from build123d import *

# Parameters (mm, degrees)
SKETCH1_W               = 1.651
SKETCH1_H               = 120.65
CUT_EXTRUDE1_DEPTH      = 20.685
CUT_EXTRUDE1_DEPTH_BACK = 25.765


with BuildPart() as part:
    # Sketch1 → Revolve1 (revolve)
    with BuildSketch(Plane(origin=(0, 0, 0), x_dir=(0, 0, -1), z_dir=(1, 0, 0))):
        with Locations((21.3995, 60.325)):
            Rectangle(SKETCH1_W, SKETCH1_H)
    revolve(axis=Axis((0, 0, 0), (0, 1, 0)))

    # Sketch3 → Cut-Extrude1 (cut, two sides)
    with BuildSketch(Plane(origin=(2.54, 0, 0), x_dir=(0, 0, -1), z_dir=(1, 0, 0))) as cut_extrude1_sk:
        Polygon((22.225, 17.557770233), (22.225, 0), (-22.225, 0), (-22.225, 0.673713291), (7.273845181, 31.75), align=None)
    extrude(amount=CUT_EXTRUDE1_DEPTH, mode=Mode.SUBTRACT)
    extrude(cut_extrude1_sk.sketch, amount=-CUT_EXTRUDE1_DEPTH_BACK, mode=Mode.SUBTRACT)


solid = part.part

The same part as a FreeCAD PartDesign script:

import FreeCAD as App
import Part
import Sketcher

V = App.Vector
Q = App.Units.Quantity


def add_polygon(sketch, points):
    """Adds a closed chain of lines whose ends are joined by coincident constraints."""
    first, n = sketch.GeometryCount, len(points)
    for a, b in zip(points, points[1:] + points[:1]):
        sketch.addGeometry(Part.LineSegment(App.Vector(*a, 0), App.Vector(*b, 0)), False)
    for i in range(n):
        sketch.addConstraint(Sketcher.Constraint("Coincident", first + i, 2, first + (i + 1) % n, 1))

doc = App.newDocument("Part")
params = doc.addObject("Spreadsheet::Sheet", "Params")
for row, (alias, value) in enumerate([
    ("sketch1_width", "4.75 in"),
    ("sketch1_height", "0.065 in"),
    ("revolution_angle", "360 deg"),
    ("sketch2_height", "1.75 in"),
], start=1):
    params.set(f"A{row}", alias)
    params.set(f"B{row}", "=" + value)
    params.setAlias(f"B{row}", alias)

body = doc.addObject("PartDesign::Body", "Body")

# Sketch on YZ plane
sketch1 = body.newObject("Sketcher::SketchObject", "Sketch")
sketch1.AttachmentSupport = (doc.getObject("YZ_Plane"), [""])
sketch1.MapMode = "FlatFace"
add_polygon(sketch1, [(120.7, -20.6), (0, -20.6), (0, -22.2), (120.7, -22.2)])  # lines 0-3
sketch1.addConstraint([
    Sketcher.Constraint("Horizontal", 0),
    Sketcher.Constraint("Vertical", 1),
    Sketcher.Constraint("Horizontal", 2),
    Sketcher.Constraint("Vertical", 3),
    Sketcher.Constraint("PointOnObject", 0, 2, -2),
    Sketcher.Constraint("DistanceX", 0, 2, 0, 1, Q("4.75 in")),
    Sketcher.Constraint("DistanceY", 1, 2, 1, 1, Q("0.065 in")),
    Sketcher.Constraint("DistanceY", 0, 2, -1, 1, Q("0.81 in")),
])
sketch1.setExpression("Constraints[9]", "Params.sketch1_width")
sketch1.setExpression("Constraints[10]", "Params.sketch1_height")
revolution = body.newObject("PartDesign::Revolution", "Revolution")
revolution.Profile = sketch1
revolution.ReferenceAxis = (sketch1, ["H_Axis"])
revolution.setExpression("Angle", "Params.revolution_angle")

# Sketch on YZ plane
sketch2 = body.newObject("Sketcher::SketchObject", "Sketch001")
sketch2.AttachmentSupport = (doc.getObject("YZ_Plane"), [""])
sketch2.MapMode = "FlatFace"
sketch2.AttachmentOffset = App.Placement(V(0, 0, 0.1 * 25.4), App.Rotation())
add_polygon(sketch2, [(0, -22.2), (17.6, -22.2), (31.8, -7.3), (0.7, 22.2), (0, 22.2)])  # lines 0-4
sketch2.addConstraint([
    Sketcher.Constraint("Horizontal", 0),
    Sketcher.Constraint("Horizontal", 3),
    Sketcher.Constraint("Vertical", 4),
    Sketcher.Constraint("Symmetric", 3, 2, 4, 2, -1, 1),
    Sketcher.Constraint("Perpendicular", 1, 2),
    Sketcher.Constraint("DistanceY", 4, 2, 4, 1, Q("1.75 in")),
    Sketcher.Constraint("DistanceX", -1, 1, 1, 2, Q("1.25 in")),
    Sketcher.Constraint("DistanceX", 0, 1, 0, 2, 17.55777),
    Sketcher.Constraint("Distance", 1, 20.614471),
])
sketch2.setExpression("Constraints[10]", "Params.sketch2_height")
pocket1 = body.newObject("PartDesign::Pocket", "Pocket")
pocket1.Profile = sketch2
pocket1.Type = "ThroughAll"
pocket1.Midplane = True

doc.recompute()
